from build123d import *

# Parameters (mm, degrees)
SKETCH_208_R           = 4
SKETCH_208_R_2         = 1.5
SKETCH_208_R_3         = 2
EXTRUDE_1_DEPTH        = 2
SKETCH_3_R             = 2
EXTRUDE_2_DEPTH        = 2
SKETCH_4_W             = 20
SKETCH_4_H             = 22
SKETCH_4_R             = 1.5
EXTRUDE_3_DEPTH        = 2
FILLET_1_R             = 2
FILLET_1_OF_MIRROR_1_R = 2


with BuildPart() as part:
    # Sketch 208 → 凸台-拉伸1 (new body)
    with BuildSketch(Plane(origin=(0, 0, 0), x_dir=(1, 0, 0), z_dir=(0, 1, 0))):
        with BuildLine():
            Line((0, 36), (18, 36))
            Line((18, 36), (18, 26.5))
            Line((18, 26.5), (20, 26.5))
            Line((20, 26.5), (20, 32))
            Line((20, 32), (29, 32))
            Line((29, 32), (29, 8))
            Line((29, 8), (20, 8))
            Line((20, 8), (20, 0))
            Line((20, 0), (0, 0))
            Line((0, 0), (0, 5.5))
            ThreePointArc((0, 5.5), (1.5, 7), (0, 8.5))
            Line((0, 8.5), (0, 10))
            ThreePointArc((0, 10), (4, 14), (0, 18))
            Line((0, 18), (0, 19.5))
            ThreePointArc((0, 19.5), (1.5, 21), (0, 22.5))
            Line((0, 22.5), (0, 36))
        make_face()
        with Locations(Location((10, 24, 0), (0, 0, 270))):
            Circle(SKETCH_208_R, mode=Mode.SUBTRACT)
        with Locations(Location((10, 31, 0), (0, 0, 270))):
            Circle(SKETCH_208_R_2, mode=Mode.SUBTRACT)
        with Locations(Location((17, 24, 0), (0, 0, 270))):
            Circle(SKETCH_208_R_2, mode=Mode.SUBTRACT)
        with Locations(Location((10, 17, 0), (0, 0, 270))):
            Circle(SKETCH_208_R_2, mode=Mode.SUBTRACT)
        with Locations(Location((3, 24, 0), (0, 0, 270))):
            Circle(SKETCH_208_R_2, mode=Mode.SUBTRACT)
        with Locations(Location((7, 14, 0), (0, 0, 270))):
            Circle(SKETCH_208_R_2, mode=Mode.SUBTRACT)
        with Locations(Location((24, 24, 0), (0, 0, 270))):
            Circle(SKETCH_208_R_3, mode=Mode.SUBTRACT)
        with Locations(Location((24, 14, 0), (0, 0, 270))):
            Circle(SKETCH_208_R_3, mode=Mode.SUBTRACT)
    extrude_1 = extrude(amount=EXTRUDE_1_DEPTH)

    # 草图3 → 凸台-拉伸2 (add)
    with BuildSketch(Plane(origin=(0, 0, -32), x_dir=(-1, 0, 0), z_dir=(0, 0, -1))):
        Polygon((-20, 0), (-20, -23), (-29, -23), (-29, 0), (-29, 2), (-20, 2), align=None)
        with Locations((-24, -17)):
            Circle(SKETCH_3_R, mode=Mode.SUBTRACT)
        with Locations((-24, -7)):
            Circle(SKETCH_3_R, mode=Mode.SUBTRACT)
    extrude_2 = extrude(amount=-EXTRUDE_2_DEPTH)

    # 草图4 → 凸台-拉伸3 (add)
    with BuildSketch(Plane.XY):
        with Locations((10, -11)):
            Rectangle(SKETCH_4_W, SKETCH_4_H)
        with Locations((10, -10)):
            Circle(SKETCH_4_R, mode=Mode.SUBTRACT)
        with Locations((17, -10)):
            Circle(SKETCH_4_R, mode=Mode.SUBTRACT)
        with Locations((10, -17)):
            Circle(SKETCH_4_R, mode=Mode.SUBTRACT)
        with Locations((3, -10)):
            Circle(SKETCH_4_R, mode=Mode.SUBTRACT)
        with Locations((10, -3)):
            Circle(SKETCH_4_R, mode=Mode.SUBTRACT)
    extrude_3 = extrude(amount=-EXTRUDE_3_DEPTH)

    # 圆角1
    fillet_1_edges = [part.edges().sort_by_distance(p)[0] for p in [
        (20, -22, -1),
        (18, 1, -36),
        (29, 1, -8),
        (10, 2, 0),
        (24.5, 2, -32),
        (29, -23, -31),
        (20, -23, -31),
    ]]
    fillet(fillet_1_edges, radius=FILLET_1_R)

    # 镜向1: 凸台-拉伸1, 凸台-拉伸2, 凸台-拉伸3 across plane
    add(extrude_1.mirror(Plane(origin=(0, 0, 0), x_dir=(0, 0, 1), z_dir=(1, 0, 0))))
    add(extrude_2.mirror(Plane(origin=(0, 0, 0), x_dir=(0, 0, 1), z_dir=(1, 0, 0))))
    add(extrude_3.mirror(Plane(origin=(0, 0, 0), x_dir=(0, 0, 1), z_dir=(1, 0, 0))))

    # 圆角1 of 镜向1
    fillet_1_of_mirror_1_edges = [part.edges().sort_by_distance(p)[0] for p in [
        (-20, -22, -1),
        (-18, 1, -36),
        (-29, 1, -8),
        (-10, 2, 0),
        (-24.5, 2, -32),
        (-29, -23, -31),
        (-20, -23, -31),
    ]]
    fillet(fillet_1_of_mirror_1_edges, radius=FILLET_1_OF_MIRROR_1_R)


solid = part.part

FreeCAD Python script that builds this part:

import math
import FreeCAD as App
import Part
import Sketcher

V = App.Vector


def edges_at(feature, points):
    """Names of the edges that pass closest to the given points."""
    edges = feature.Shape.Edges
    near = lambda p: min(range(len(edges)), key=lambda i: edges[i].distToShape(Part.Vertex(*p))[0])
    return sorted({f"Edge{near(p) + 1}" for p in points})

doc = App.newDocument("Part")
body = doc.addObject("PartDesign::Body", "Body")

sketch1 = body.newObject("Sketcher::SketchObject", "Sketch")
sketch1.AttachmentSupport = (doc.getObject("XZ_Plane"), [""])
sketch1.MapMode = "FlatFace"
sketch1.addGeometry(Part.LineSegment(V(18, -36, 0), V(0, -36, 0)), False)
sketch1.addGeometry(Part.LineSegment(V(0, -36, 0), V(0, -22.5, 0)), False)
sketch1.addGeometry(Part.ArcOfCircle(Part.Circle(V(0, -21, 0), V(0, 0, 1), 1.5), math.radians(-90), math.radians(90)), False)
sketch1.addGeometry(Part.LineSegment(V(0, -19.5, 0), V(0, -18, 0)), False)
sketch1.addGeometry(Part.ArcOfCircle(Part.Circle(V(0, -14, 0), V(0, 0, 1), 4), math.radians(-90), math.radians(90)), False)
sketch1.addGeometry(Part.LineSegment(V(0, -10, 0), V(0, -8.5, 0)), False)
sketch1.addGeometry(Part.ArcOfCircle(Part.Circle(V(0, -7, 0), V(0, 0, 1), 1.5), math.radians(-90), math.radians(90)), False)
sketch1.addGeometry(Part.LineSegment(V(0, -5.5, 0), V(0, 0, 0)), False)
sketch1.addGeometry(Part.LineSegment(V(0, 0, 0), V(20, 0, 0)), False)
sketch1.addGeometry(Part.LineSegment(V(20, 0, 0), V(20, -8, 0)), False)
sketch1.addGeometry(Part.LineSegment(V(20, -8, 0), V(29, -8, 0)), False)
sketch1.addGeometry(Part.LineSegment(V(29, -8, 0), V(29, -32, 0)), False)
sketch1.addGeometry(Part.LineSegment(V(29, -32, 0), V(20, -32, 0)), False)
sketch1.addGeometry(Part.LineSegment(V(20, -32, 0), V(20, -26.5, 0)), False)
sketch1.addGeometry(Part.LineSegment(V(20, -26.5, 0), V(18, -26.5, 0)), False)
sketch1.addGeometry(Part.LineSegment(V(18, -26.5, 0), V(18, -36, 0)), False)
sketch1.addGeometry(Part.Circle(V(24, -14, 0), V(0, 0, 1), 2), False)
sketch1.addGeometry(Part.Circle(V(10, -17, 0), V(0, 0, 1), 1.5), False)
sketch1.addGeometry(Part.Circle(V(7, -14, 0), V(0, 0, 1), 1.5), False)
sketch1.addGeometry(Part.Circle(V(24, -24, 0), V(0, 0, 1), 2), False)
sketch1.addGeometry(Part.Circle(V(17, -24, 0), V(0, 0, 1), 1.5), False)
sketch1.addGeometry(Part.Circle(V(10, -24, 0), V(0, 0, 1), 4), False)
sketch1.addGeometry(Part.Circle(V(3, -24, 0), V(0, 0, 1), 1.5), False)
sketch1.addGeometry(Part.Circle(V(10, -31, 0), V(0, 0, 1), 1.5), False)
sketch1.addConstraint(Sketcher.Constraint("Coincident", 0, 2, 1, 1))
sketch1.addConstraint(Sketcher.Constraint("Coincident", 1, 2, 2, 1))
sketch1.addConstraint(Sketcher.Constraint("Coincident", 2, 2, 3, 1))
sketch1.addConstraint(Sketcher.Constraint("Coincident", 3, 2, 4, 1))
sketch1.addConstraint(Sketcher.Constraint("Coincident", 4, 2, 5, 1))
sketch1.addConstraint(Sketcher.Constraint("Coincident", 5, 2, 6, 1))
sketch1.addConstraint(Sketcher.Constraint("Coincident", 6, 2, 7, 1))
sketch1.addConstraint(Sketcher.Constraint("Coincident", 7, 2, 8, 1))
sketch1.addConstraint(Sketcher.Constraint("Coincident", 8, 2, 9, 1))
sketch1.addConstraint(Sketcher.Constraint("Coincident", 9, 2, 10, 1))
sketch1.addConstraint(Sketcher.Constraint("Coincident", 10, 2, 11, 1))
sketch1.addConstraint(Sketcher.Constraint("Coincident", 11, 2, 12, 1))
sketch1.addConstraint(Sketcher.Constraint("Coincident", 12, 2, 13, 1))
sketch1.addConstraint(Sketcher.Constraint("Coincident", 13, 2, 14, 1))
sketch1.addConstraint(Sketcher.Constraint("Coincident", 14, 2, 15, 1))
sketch1.addConstraint(Sketcher.Constraint("Coincident", 15, 2, 0, 1))
sketch1.addConstraint(Sketcher.Constraint("Horizontal", 0))
sketch1.addConstraint(Sketcher.Constraint("Vertical", 1))
sketch1.addConstraint(Sketcher.Constraint("Vertical", 3))
sketch1.addConstraint(Sketcher.Constraint("Vertical", 5))
sketch1.addConstraint(Sketcher.Constraint("Vertical", 7))
sketch1.addConstraint(Sketcher.Constraint("Horizontal", 8))
sketch1.addConstraint(Sketcher.Constraint("Vertical", 9))
sketch1.addConstraint(Sketcher.Constraint("Horizontal", 10))
sketch1.addConstraint(Sketcher.Constraint("Vertical", 11))
sketch1.addConstraint(Sketcher.Constraint("Horizontal", 12))
sketch1.addConstraint(Sketcher.Constraint("Vertical", 13))
sketch1.addConstraint(Sketcher.Constraint("Horizontal", 14))
sketch1.addConstraint(Sketcher.Constraint("Vertical", 15))
sketch1.addConstraint(Sketcher.Constraint("Coincident", 7, 2, -1, 1))
sketch1.addConstraint(Sketcher.Constraint("Equal", 2, 6))
sketch1.addConstraint(Sketcher.Constraint("Equal", 6, 17))
sketch1.addConstraint(Sketcher.Constraint("Equal", 17, 18))
sketch1.addConstraint(Sketcher.Constraint("Equal", 16, 19))
sketch1.addConstraint(Sketcher.Constraint("Equal", 18, 20))
sketch1.addConstraint(Sketcher.Constraint("Equal", 4, 21))
sketch1.addConstraint(Sketcher.Constraint("Equal", 20, 22))
sketch1.addConstraint(Sketcher.Constraint("Equal", 22, 23))
sketch1.addConstraint(Sketcher.Constraint("PointOnObject", 2, 3, -2))
sketch1.addConstraint(Sketcher.Constraint("PointOnObject", 4, 3, -2))
sketch1.addConstraint(Sketcher.Constraint("PointOnObject", 6, 3, -2))
sketch1.addConstraint(Sketcher.Constraint("PointOnObject", 0, 2, -2))
sketch1.addConstraint(Sketcher.Constraint("PointOnObject", 2, 2, -2))
sketch1.addConstraint(Sketcher.Constraint("PointOnObject", 4, 2, -2))
sketch1.addConstraint(Sketcher.Constraint("Horizontal", 4, 3, 16, 3))
sketch1.addConstraint(Sketcher.Constraint("Horizontal", 16, 3, 18, 3))
sketch1.addConstraint(Sketcher.Constraint("Horizontal", 19, 3, 20, 3))
sketch1.addConstraint(Sketcher.Constraint("Horizontal", 20, 3, 21, 3))
sketch1.addConstraint(Sketcher.Constraint("Horizontal", 21, 3, 22, 3))
sketch1.addConstraint(Sketcher.Constraint("Vertical", 16, 3, 19, 3))
sketch1.addConstraint(Sketcher.Constraint("Vertical", 17, 3, 21, 3))
sketch1.addConstraint(Sketcher.Constraint("Vertical", 21, 3, 23, 3))
sketch1.addConstraint(Sketcher.Constraint("Vertical", 9, 2, 12, 2))
sketch1.addConstraint(Sketcher.Constraint("Equal", 3, 5))
sketch1.addConstraint(Sketcher.Constraint("Equal", 7, 13))
sketch1.addConstraint(Sketcher.Constraint("Diameter", 16, 4.0))
sketch1.addConstraint(Sketcher.Constraint("Diameter", 17, 3.0))
sketch1.addConstraint(Sketcher.Constraint("Diameter", 21, 8.0))
sketch1.addConstraint(Sketcher.Constraint("DistanceX", 0, 2, 0, 1, 18.0))
sketch1.addConstraint(Sketcher.Constraint("DistanceX", 8, 1, 8, 2, 20.0))
sketch1.addConstraint(Sketcher.Constraint("DistanceX", 10, 1, 10, 2, 9.0))
sketch1.addConstraint(Sketcher.Constraint("DistanceY", 9, 2, 9, 1, 8.0))
sketch1.addConstraint(Sketcher.Constraint("DistanceY", 11, 2, 11, 1, 24.0))
sketch1.addConstraint(Sketcher.Constraint("DistanceY", 1, 1, 1, 2, 13.5))
sketch1.addConstraint(Sketcher.Constraint("DistanceY", 3, 1, 3, 2, 1.5))
sketch1.addConstraint(Sketcher.Constraint("DistanceY", 7, 1, 7, 2, 5.5))
sketch1.addConstraint(Sketcher.Constraint("DistanceX", -1, 1, 16, 3, 24.0))
sketch1.addConstraint(Sketcher.Constraint("DistanceX", -1, 1, 17, 3, 10.0))
sketch1.addConstraint(Sketcher.Constraint("DistanceY", 17, 3, -1, 1, 17.0))
sketch1.addConstraint(Sketcher.Constraint("DistanceX", -1, 1, 18, 3, 7.0))
sketch1.addConstraint(Sketcher.Constraint("DistanceY", 19, 3, -1, 1, 24.0))
sketch1.addConstraint(Sketcher.Constraint("DistanceX", -1, 1, 20, 3, 17.0))
sketch1.addConstraint(Sketcher.Constraint("DistanceX", -1, 1, 22, 3, 3.0))
sketch1.addConstraint(Sketcher.Constraint("DistanceY", 23, 3, -1, 1, 31.0))
pad1 = body.newObject("PartDesign::Pad", "Pad")
pad1.Profile = sketch1
pad1.Length = 2
pad1.Reversed = True

sketch2 = body.newObject("Sketcher::SketchObject", "Sketch001")
sketch2.AttachmentSupport = (doc.getObject("XY_Plane"), [""])
sketch2.MapMode = "FlatFace"
sketch2.AttachmentOffset = App.Placement(V(0, 0, -32), App.Rotation())
sketch2.addGeometry(Part.LineSegment(V(20, -23, 0), V(20, 2, 0)), False)
sketch2.addGeometry(Part.LineSegment(V(20, 2, 0), V(29, 2, 0)), False)
sketch2.addGeometry(Part.LineSegment(V(29, 2, 0), V(29, -23, 0)), False)
sketch2.addGeometry(Part.LineSegment(V(29, -23, 0), V(20, -23, 0)), False)
sketch2.addGeometry(Part.Circle(V(24, -17, 0), V(0, 0, 1), 2), False)
sketch2.addGeometry(Part.Circle(V(24, -7, 0), V(0, 0, 1), 2), False)
sketch2.addConstraint(Sketcher.Constraint("Coincident", 0, 2, 1, 1))
sketch2.addConstraint(Sketcher.Constraint("Coincident", 1, 2, 2, 1))
sketch2.addConstraint(Sketcher.Constraint("Coincident", 2, 2, 3, 1))
sketch2.addConstraint(Sketcher.Constraint("Coincident", 3, 2, 0, 1))
sketch2.addConstraint(Sketcher.Constraint("Vertical", 0))
sketch2.addConstraint(Sketcher.Constraint("Horizontal", 1))
sketch2.addConstraint(Sketcher.Constraint("Vertical", 2))
sketch2.addConstraint(Sketcher.Constraint("Horizontal", 3))
sketch2.addConstraint(Sketcher.Constraint("Equal", 4, 5))
sketch2.addConstraint(Sketcher.Constraint("Vertical", 4, 3, 5, 3))
sketch2.addConstraint(Sketcher.Constraint("Diameter", 4, 4.0))
sketch2.addConstraint(Sketcher.Constraint("DistanceX", 1, 1, 1, 2, 9.0))
sketch2.addConstraint(Sketcher.Constraint("DistanceY", 0, 1, 0, 2, 25.0))
sketch2.addConstraint(Sketcher.Constraint("DistanceX", -1, 1, 4, 3, 24.0))
sketch2.addConstraint(Sketcher.Constraint("DistanceY", 4, 3, -1, 1, 17.0))
sketch2.addConstraint(Sketcher.Constraint("DistanceY", 5, 3, -1, 1, 7.0))
sketch2.addConstraint(Sketcher.Constraint("DistanceX", -1, 1, 0, 2, 20.0))
sketch2.addConstraint(Sketcher.Constraint("DistanceY", -1, 1, 0, 2, 2.0))
pad2 = body.newObject("PartDesign::Pad", "Pad001")
pad2.Profile = sketch2
pad2.Length = 2

sketch3 = body.newObject("Sketcher::SketchObject", "Sketch002")
sketch3.AttachmentSupport = (doc.getObject("XY_Plane"), [""])
sketch3.MapMode = "FlatFace"
sketch3.addGeometry(Part.LineSegment(V(0, 0, 0), V(0, -22, 0)), False)
sketch3.addGeometry(Part.LineSegment(V(0, -22, 0), V(20, -22, 0)), False)
sketch3.addGeometry(Part.LineSegment(V(20, -22, 0), V(20, 0, 0)), False)
sketch3.addGeometry(Part.LineSegment(V(20, 0, 0), V(0, 0, 0)), False)
sketch3.addGeometry(Part.Circle(V(10, -17, 0), V(0, 0, 1), 1.5), False)
sketch3.addGeometry(Part.Circle(V(3, -10, 0), V(0, 0, 1), 1.5), False)
sketch3.addGeometry(Part.Circle(V(10, -10, 0), V(0, 0, 1), 1.5), False)
sketch3.addGeometry(Part.Circle(V(17, -10, 0), V(0, 0, 1), 1.5), False)
sketch3.addGeometry(Part.Circle(V(10, -3, 0), V(0, 0, 1), 1.5), False)
sketch3.addConstraint(Sketcher.Constraint("Coincident", 0, 2, 1, 1))
sketch3.addConstraint(Sketcher.Constraint("Coincident", 1, 2, 2, 1))
sketch3.addConstraint(Sketcher.Constraint("Coincident", 2, 2, 3, 1))
sketch3.addConstraint(Sketcher.Constraint("Coincident", 3, 2, 0, 1))
sketch3.addConstraint(Sketcher.Constraint("Vertical", 0))
sketch3.addConstraint(Sketcher.Constraint("Horizontal", 1))
sketch3.addConstraint(Sketcher.Constraint("Vertical", 2))
sketch3.addConstraint(Sketcher.Constraint("Horizontal", 3))
sketch3.addConstraint(Sketcher.Constraint("Coincident", 3, 2, -1, 1))
sketch3.addConstraint(Sketcher.Constraint("Equal", 4, 5))
sketch3.addConstraint(Sketcher.Constraint("Equal", 5, 6))
sketch3.addConstraint(Sketcher.Constraint("Equal", 6, 7))
sketch3.addConstraint(Sketcher.Constraint("Equal", 7, 8))
sketch3.addConstraint(Sketcher.Constraint("Horizontal", 5, 3, 6, 3))
sketch3.addConstraint(Sketcher.Constraint("Horizontal", 6, 3, 7, 3))
sketch3.addConstraint(Sketcher.Constraint("Vertical", 4, 3, 6, 3))
sketch3.addConstraint(Sketcher.Constraint("Vertical", 6, 3, 8, 3))
sketch3.addConstraint(Sketcher.Constraint("Diameter", 4, 3.0))
sketch3.addConstraint(Sketcher.Constraint("DistanceX", 1, 1, 1, 2, 20.0))
sketch3.addConstraint(Sketcher.Constraint("DistanceY", 0, 2, 0, 1, 22.0))
sketch3.addConstraint(Sketcher.Constraint("DistanceX", -1, 1, 4, 3, 10.0))
sketch3.addConstraint(Sketcher.Constraint("DistanceY", 4, 3, -1, 1, 17.0))
sketch3.addConstraint(Sketcher.Constraint("DistanceX", -1, 1, 5, 3, 3.0))
sketch3.addConstraint(Sketcher.Constraint("DistanceY", 5, 3, -1, 1, 10.0))
sketch3.addConstraint(Sketcher.Constraint("DistanceX", -1, 1, 7, 3, 17.0))
sketch3.addConstraint(Sketcher.Constraint("DistanceY", 8, 3, -1, 1, 3.0))
pad3 = body.newObject("PartDesign::Pad", "Pad002")
pad3.Profile = sketch3
pad3.Length = 2
pad3.Reversed = True
doc.recompute()

fillet = body.newObject("PartDesign::Fillet", "Fillet")
fillet.Base = (pad3, edges_at(pad3, [
    (20, -22, -1),
    (18, 1, -36),
    (29, 1, -8),
    (10, 2, 0),
    (24.5, 2, -32),
    (29, -23, -31),
    (20, -23, -31),
]))
fillet.Radius = 2
doc.recompute()

mirrored = body.newObject("PartDesign::Mirrored", "Mirrored")
mirrored.Originals = [pad1, pad2, pad3]
mirrored.MirrorPlane = (doc.getObject("YZ_Plane"), [""])
body.Tip = mirrored
doc.recompute()

fillet2 = body.newObject("PartDesign::Fillet", "Fillet001")
fillet2.Base = (mirrored, edges_at(mirrored, [
    (-20, -22, -1),
    (-18, 1, -36),
    (-29, 1, -8),
    (-10, 2, 0),
    (-24.5, 2, -32),
    (-29, -23, -31),
    (-20, -23, -31),
]))
fillet2.Radius = 2

doc.recompute()
